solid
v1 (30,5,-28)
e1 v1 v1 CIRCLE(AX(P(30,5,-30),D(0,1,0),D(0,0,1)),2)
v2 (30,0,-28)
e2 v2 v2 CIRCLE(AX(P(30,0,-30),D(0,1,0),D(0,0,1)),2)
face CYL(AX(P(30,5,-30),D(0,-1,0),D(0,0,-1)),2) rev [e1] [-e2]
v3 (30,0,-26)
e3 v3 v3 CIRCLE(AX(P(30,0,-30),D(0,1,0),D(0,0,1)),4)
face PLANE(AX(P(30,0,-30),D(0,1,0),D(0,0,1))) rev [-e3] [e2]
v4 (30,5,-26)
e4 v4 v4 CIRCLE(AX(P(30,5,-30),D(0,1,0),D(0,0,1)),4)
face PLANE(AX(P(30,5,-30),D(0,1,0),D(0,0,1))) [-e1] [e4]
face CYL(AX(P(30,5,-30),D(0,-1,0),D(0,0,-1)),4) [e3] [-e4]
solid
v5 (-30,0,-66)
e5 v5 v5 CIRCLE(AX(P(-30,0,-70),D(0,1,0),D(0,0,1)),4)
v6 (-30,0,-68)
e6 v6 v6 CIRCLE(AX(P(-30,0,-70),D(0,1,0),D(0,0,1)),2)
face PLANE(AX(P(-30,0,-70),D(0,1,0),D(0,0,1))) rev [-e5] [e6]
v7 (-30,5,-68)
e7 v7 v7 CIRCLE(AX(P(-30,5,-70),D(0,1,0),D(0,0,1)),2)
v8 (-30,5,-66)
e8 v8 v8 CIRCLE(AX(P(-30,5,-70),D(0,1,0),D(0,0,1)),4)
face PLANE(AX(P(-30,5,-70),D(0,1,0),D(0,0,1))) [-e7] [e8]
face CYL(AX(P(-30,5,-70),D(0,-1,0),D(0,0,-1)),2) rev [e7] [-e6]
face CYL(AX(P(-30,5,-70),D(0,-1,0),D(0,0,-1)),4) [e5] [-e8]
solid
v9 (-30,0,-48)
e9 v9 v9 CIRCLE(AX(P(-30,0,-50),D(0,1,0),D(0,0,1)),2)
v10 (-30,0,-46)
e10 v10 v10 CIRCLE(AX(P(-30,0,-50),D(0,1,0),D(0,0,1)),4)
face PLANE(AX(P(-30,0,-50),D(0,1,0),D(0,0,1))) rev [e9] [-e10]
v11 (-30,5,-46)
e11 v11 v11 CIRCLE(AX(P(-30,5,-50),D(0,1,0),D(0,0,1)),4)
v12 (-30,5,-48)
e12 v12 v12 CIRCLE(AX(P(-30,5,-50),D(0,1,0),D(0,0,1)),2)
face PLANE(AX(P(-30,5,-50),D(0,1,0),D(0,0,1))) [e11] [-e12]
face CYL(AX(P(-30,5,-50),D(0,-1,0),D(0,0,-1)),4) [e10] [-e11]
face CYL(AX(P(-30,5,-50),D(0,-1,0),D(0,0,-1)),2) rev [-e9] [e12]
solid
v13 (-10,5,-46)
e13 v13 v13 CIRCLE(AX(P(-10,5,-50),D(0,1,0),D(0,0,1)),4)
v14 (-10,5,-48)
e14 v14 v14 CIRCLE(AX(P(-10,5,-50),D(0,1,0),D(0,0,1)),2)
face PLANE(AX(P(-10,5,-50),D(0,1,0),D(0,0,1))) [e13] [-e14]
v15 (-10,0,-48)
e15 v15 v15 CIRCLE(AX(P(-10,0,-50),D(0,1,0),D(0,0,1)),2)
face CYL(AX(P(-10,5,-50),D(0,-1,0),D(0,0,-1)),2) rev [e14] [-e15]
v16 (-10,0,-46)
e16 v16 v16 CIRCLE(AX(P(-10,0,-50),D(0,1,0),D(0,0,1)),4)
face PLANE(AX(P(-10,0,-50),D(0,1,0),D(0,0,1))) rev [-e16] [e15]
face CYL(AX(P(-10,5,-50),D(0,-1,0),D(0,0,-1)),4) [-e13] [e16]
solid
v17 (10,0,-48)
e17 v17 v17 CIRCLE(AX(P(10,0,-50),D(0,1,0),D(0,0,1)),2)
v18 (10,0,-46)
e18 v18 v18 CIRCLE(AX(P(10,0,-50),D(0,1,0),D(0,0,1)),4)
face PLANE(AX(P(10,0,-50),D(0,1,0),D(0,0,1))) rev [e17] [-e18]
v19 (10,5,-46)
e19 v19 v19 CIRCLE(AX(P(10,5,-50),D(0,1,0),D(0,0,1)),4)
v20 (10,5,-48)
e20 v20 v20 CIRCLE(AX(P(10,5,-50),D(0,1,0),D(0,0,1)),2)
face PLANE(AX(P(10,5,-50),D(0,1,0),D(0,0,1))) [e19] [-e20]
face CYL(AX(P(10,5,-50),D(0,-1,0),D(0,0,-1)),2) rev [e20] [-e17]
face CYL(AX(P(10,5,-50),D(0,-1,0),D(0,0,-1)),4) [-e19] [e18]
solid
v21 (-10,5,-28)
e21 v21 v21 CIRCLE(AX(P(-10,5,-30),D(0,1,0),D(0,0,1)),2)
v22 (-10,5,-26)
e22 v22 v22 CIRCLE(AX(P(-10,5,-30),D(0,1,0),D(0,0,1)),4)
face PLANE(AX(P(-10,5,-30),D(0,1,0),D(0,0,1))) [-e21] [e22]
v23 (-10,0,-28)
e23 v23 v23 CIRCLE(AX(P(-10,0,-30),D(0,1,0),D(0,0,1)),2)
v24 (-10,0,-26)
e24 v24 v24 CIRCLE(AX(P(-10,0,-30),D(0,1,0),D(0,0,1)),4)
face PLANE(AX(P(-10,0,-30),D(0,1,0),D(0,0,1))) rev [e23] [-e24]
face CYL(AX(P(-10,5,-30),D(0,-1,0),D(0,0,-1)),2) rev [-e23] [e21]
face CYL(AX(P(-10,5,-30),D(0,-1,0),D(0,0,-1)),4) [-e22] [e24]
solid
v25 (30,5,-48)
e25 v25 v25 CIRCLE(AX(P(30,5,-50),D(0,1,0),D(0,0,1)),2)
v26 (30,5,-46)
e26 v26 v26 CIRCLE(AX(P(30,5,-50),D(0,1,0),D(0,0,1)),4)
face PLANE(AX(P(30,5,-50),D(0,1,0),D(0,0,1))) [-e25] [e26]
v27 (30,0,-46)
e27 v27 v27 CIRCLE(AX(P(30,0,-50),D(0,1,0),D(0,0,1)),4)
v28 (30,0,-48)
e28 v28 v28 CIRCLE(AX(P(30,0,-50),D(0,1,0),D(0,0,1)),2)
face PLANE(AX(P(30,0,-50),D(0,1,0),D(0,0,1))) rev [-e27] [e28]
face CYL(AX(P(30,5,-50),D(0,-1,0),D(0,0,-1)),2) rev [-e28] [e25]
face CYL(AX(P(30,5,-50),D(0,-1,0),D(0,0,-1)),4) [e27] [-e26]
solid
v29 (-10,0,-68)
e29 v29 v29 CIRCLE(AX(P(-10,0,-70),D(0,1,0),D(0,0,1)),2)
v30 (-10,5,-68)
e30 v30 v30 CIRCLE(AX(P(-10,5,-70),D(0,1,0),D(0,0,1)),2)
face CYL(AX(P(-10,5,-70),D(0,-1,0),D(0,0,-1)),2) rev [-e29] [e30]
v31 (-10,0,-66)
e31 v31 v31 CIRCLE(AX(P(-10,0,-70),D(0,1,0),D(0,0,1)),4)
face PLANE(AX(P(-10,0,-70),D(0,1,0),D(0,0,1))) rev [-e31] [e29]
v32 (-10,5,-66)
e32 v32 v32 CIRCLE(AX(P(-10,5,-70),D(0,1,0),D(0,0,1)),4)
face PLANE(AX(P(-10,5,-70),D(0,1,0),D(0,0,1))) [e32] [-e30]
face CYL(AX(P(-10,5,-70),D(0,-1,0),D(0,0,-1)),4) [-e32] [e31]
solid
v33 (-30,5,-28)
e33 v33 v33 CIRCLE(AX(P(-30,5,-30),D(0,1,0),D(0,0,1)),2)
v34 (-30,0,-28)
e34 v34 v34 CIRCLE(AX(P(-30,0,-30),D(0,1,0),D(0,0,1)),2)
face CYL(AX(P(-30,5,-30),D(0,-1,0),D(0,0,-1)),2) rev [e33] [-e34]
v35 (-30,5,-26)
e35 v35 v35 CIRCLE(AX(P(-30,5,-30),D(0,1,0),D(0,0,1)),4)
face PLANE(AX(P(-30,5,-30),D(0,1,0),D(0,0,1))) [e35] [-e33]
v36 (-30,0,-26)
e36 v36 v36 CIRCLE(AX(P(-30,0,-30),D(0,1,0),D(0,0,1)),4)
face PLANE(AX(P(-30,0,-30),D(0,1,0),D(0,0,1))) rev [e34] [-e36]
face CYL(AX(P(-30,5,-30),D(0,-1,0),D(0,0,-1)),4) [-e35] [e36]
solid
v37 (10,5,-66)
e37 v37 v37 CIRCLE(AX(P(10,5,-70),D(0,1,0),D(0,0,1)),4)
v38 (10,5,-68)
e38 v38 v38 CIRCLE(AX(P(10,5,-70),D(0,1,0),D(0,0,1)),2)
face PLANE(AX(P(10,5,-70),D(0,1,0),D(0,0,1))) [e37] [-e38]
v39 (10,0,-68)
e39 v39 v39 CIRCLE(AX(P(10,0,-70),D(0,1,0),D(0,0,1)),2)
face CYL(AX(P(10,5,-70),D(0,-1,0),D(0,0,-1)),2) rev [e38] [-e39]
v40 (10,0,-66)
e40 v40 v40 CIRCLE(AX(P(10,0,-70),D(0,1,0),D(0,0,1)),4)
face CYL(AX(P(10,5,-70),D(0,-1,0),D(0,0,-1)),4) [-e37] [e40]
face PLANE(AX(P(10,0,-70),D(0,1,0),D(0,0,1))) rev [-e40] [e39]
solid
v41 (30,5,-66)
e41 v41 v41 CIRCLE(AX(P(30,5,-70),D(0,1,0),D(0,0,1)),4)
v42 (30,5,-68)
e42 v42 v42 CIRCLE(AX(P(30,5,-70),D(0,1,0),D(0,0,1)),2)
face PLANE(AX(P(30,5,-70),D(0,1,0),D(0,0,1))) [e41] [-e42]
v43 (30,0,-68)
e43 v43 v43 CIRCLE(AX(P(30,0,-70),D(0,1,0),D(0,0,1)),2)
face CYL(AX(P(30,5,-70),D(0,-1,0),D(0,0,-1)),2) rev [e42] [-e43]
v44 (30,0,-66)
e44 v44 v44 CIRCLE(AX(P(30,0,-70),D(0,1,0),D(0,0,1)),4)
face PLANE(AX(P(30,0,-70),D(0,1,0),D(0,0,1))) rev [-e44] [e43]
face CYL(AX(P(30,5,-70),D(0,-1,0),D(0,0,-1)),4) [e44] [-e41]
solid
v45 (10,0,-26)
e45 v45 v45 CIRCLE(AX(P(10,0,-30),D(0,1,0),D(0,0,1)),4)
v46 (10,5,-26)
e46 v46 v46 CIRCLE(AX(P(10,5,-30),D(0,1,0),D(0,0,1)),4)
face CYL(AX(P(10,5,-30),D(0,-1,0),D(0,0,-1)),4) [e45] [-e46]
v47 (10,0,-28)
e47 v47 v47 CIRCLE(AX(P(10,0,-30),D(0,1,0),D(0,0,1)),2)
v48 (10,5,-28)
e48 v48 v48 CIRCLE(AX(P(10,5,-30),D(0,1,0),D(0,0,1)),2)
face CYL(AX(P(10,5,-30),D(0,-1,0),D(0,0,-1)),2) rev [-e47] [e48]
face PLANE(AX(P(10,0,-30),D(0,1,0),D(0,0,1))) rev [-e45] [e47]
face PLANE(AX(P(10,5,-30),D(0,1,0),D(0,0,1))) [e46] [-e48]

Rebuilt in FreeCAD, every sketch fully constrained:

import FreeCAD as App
import Part
import Sketcher

V = App.Vector

doc = App.newDocument("Part")
params = doc.addObject("Spreadsheet::Sheet", "Params")
for row, (alias, value) in enumerate([
    ("sketch1_diameter", "8 mm"),
    ("sketch1_diameter2", "4 mm"),
    ("pad1_length", "5 mm"),
    ("sketch2_diameter", "8 mm"),
    ("sketch2_diameter2", "4 mm"),
    ("pad2_length", "5 mm"),
    ("sketch3_diameter", "8 mm"),
    ("sketch3_diameter2", "4 mm"),
    ("pad3_length", "5 mm"),
    ("sketch4_diameter", "8 mm"),
    ("sketch4_diameter2", "4 mm"),
    ("pad4_length", "5 mm"),
    ("sketch5_diameter", "8 mm"),
    ("sketch5_diameter2", "4 mm"),
    ("pad5_length", "5 mm"),
    ("sketch6_diameter", "8 mm"),
    ("sketch6_diameter2", "4 mm"),
    ("pad6_length", "5 mm"),
    ("sketch7_diameter", "8 mm"),
    ("sketch7_diameter2", "4 mm"),
    ("pad7_length", "5 mm"),
    ("sketch8_diameter", "8 mm"),
    ("sketch8_diameter2", "4 mm"),
    ("pad8_length", "5 mm"),
    ("sketch9_diameter", "8 mm"),
    ("sketch9_diameter2", "4 mm"),
    ("pad9_length", "5 mm"),
    ("sketch10_diameter", "8 mm"),
    ("sketch10_diameter2", "4 mm"),
    ("pad10_length", "5 mm"),
    ("sketch11_diameter", "8 mm"),
    ("sketch11_diameter2", "4 mm"),
    ("pad11_length", "5 mm"),
    ("sketch12_diameter", "8 mm"),
    ("sketch12_diameter2", "4 mm"),
    ("pad12_length", "5 mm"),
], start=1):
    params.set(f"A{row}", alias)
    params.set(f"B{row}", "=" + value)
    params.setAlias(f"B{row}", alias)

body = doc.addObject("PartDesign::Body", "Body")

sketch1 = body.newObject("Sketcher::SketchObject", "Sketch")
sketch1.AttachmentSupport = (doc.getObject("XZ_Plane"), [""])
sketch1.MapMode = "FlatFace"
sketch1.addGeometry([
    Part.Circle(V(-30, -30, 0), V(0, 0, 1), 4),
    Part.Circle(V(-30, -30, 0), V(0, 0, 1), 2),
], False)
sketch1.addConstraint([
    Sketcher.Constraint("Coincident", 1, 3, 0, 3),
    Sketcher.Constraint("Diameter", 0, 8.0),
    Sketcher.Constraint("Diameter", 1, 4.0),
    Sketcher.Constraint("DistanceX", 0, 3, -1, 1, 30.0),
    Sketcher.Constraint("DistanceY", 0, 3, -1, 1, 30.0),
])
sketch1.setExpression("Constraints[1]", "Params.sketch1_diameter")
sketch1.setExpression("Constraints[2]", "Params.sketch1_diameter2")
pad1 = body.newObject("PartDesign::Pad", "Pad")
pad1.Profile = sketch1
pad1.setExpression("Length", "Params.pad1_length")
pad1.Reversed = True
body2 = doc.addObject("PartDesign::Body", "Body001")

sketch2 = body2.newObject("Sketcher::SketchObject", "Sketch001")
sketch2.AttachmentSupport = (doc.getObject("XZ_Plane001"), [""])
sketch2.MapMode = "FlatFace"
sketch2.addGeometry([
    Part.Circle(V(-10, -30, 0), V(0, 0, 1), 4),
    Part.Circle(V(-10, -30, 0), V(0, 0, 1), 2),
], False)
sketch2.addConstraint([
    Sketcher.Constraint("Coincident", 1, 3, 0, 3),
    Sketcher.Constraint("Diameter", 0, 8.0),
    Sketcher.Constraint("Diameter", 1, 4.0),
    Sketcher.Constraint("DistanceX", 0, 3, -1, 1, 10.0),
    Sketcher.Constraint("DistanceY", 0, 3, -1, 1, 30.0),
])
sketch2.setExpression("Constraints[1]", "Params.sketch2_diameter")
sketch2.setExpression("Constraints[2]", "Params.sketch2_diameter2")
pad2 = body2.newObject("PartDesign::Pad", "Pad001")
pad2.Profile = sketch2
pad2.setExpression("Length", "Params.pad2_length")
pad2.Reversed = True
body3 = doc.addObject("PartDesign::Body", "Body002")

sketch3 = body3.newObject("Sketcher::SketchObject", "Sketch002")
sketch3.AttachmentSupport = (doc.getObject("XZ_Plane002"), [""])
sketch3.MapMode = "FlatFace"
sketch3.addGeometry([
    Part.Circle(V(10, -30, 0), V(0, 0, 1), 4),
    Part.Circle(V(10, -30, 0), V(0, 0, 1), 2),
], False)
sketch3.addConstraint([
    Sketcher.Constraint("Coincident", 1, 3, 0, 3),
    Sketcher.Constraint("Diameter", 0, 8.0),
    Sketcher.Constraint("Diameter", 1, 4.0),
    Sketcher.Constraint("DistanceX", -1, 1, 0, 3, 10.0),
    Sketcher.Constraint("DistanceY", 0, 3, -1, 1, 30.0),
])
sketch3.setExpression("Constraints[1]", "Params.sketch3_diameter")
sketch3.setExpression("Constraints[2]", "Params.sketch3_diameter2")
pad3 = body3.newObject("PartDesign::Pad", "Pad002")
pad3.Profile = sketch3
pad3.setExpression("Length", "Params.pad3_length")
pad3.Reversed = True
body4 = doc.addObject("PartDesign::Body", "Body003")

sketch4 = body4.newObject("Sketcher::SketchObject", "Sketch003")
sketch4.AttachmentSupport = (doc.getObject("XZ_Plane003"), [""])
sketch4.MapMode = "FlatFace"
sketch4.addGeometry([
    Part.Circle(V(30, -30, 0), V(0, 0, 1), 4),
    Part.Circle(V(30, -30, 0), V(0, 0, 1), 2),
], False)
sketch4.addConstraint([
    Sketcher.Constraint("Coincident", 1, 3, 0, 3),
    Sketcher.Constraint("Diameter", 0, 8.0),
    Sketcher.Constraint("Diameter", 1, 4.0),
    Sketcher.Constraint("DistanceX", -1, 1, 0, 3, 30.0),
    Sketcher.Constraint("DistanceY", 0, 3, -1, 1, 30.0),
])
sketch4.setExpression("Constraints[1]", "Params.sketch4_diameter")
sketch4.setExpression("Constraints[2]", "Params.sketch4_diameter2")
pad4 = body4.newObject("PartDesign::Pad", "Pad003")
pad4.Profile = sketch4
pad4.setExpression("Length", "Params.pad4_length")
pad4.Reversed = True
body5 = doc.addObject("PartDesign::Body", "Body004")

sketch5 = body5.newObject("Sketcher::SketchObject", "Sketch004")
sketch5.AttachmentSupport = (doc.getObject("XZ_Plane004"), [""])
sketch5.MapMode = "FlatFace"
sketch5.addGeometry([
    Part.Circle(V(-10, -50, 0), V(0, 0, 1), 4),
    Part.Circle(V(-10, -50, 0), V(0, 0, 1), 2),
], False)
sketch5.addConstraint([
    Sketcher.Constraint("Coincident", 1, 3, 0, 3),
    Sketcher.Constraint("Diameter", 0, 8.0),
    Sketcher.Constraint("Diameter", 1, 4.0),
    Sketcher.Constraint("DistanceX", 0, 3, -1, 1, 10.0),
    Sketcher.Constraint("DistanceY", 0, 3, -1, 1, 50.0),
])
sketch5.setExpression("Constraints[1]", "Params.sketch5_diameter")
sketch5.setExpression("Constraints[2]", "Params.sketch5_diameter2")
pad5 = body5.newObject("PartDesign::Pad", "Pad004")
pad5.Profile = sketch5
pad5.setExpression("Length", "Params.pad5_length")
pad5.Reversed = True
body6 = doc.addObject("PartDesign::Body", "Body005")

sketch6 = body6.newObject("Sketcher::SketchObject", "Sketch005")
sketch6.AttachmentSupport = (doc.getObject("XZ_Plane005"), [""])
sketch6.MapMode = "FlatFace"
sketch6.addGeometry([
    Part.Circle(V(10, -50, 0), V(0, 0, 1), 4),
    Part.Circle(V(10, -50, 0), V(0, 0, 1), 2),
], False)
sketch6.addConstraint([
    Sketcher.Constraint("Coincident", 1, 3, 0, 3),
    Sketcher.Constraint("Diameter", 0, 8.0),
    Sketcher.Constraint("Diameter", 1, 4.0),
    Sketcher.Constraint("DistanceX", -1, 1, 0, 3, 10.0),
    Sketcher.Constraint("DistanceY", 0, 3, -1, 1, 50.0),
])
sketch6.setExpression("Constraints[1]", "Params.sketch6_diameter")
sketch6.setExpression("Constraints[2]", "Params.sketch6_diameter2")
pad6 = body6.newObject("PartDesign::Pad", "Pad005")
pad6.Profile = sketch6
pad6.setExpression("Length", "Params.pad6_length")
pad6.Reversed = True
body7 = doc.addObject("PartDesign::Body", "Body006")

sketch7 = body7.newObject("Sketcher::SketchObject", "Sketch006")
sketch7.AttachmentSupport = (doc.getObject("XZ_Plane006"), [""])
sketch7.MapMode = "FlatFace"
sketch7.addGeometry([
    Part.Circle(V(30, -50, 0), V(0, 0, 1), 4),
    Part.Circle(V(30, -50, 0), V(0, 0, 1), 2),
], False)
sketch7.addConstraint([
    Sketcher.Constraint("Coincident", 1, 3, 0, 3),
    Sketcher.Constraint("Diameter", 0, 8.0),
    Sketcher.Constraint("Diameter", 1, 4.0),
    Sketcher.Constraint("DistanceX", -1, 1, 0, 3, 30.0),
    Sketcher.Constraint("DistanceY", 0, 3, -1, 1, 50.0),
])
sketch7.setExpression("Constraints[1]", "Params.sketch7_diameter")
sketch7.setExpression("Constraints[2]", "Params.sketch7_diameter2")
pad7 = body7.newObject("PartDesign::Pad", "Pad006")
pad7.Profile = sketch7
pad7.setExpression("Length", "Params.pad7_length")
pad7.Reversed = True
body8 = doc.addObject("PartDesign::Body", "Body007")

sketch8 = body8.newObject("Sketcher::SketchObject", "Sketch007")
sketch8.AttachmentSupport = (doc.getObject("XZ_Plane007"), [""])
sketch8.MapMode = "FlatFace"
sketch8.addGeometry([
    Part.Circle(V(-10, -70, 0), V(0, 0, 1), 4),
    Part.Circle(V(-10, -70, 0), V(0, 0, 1), 2),
], False)
sketch8.addConstraint([
    Sketcher.Constraint("Coincident", 1, 3, 0, 3),
    Sketcher.Constraint("Diameter", 0, 8.0),
    Sketcher.Constraint("Diameter", 1, 4.0),
    Sketcher.Constraint("DistanceX", 0, 3, -1, 1, 10.0),
    Sketcher.Constraint("DistanceY", 0, 3, -1, 1, 70.0),
])
sketch8.setExpression("Constraints[1]", "Params.sketch8_diameter")
sketch8.setExpression("Constraints[2]", "Params.sketch8_diameter2")
pad8 = body8.newObject("PartDesign::Pad", "Pad007")
pad8.Profile = sketch8
pad8.setExpression("Length", "Params.pad8_length")
pad8.Reversed = True
body9 = doc.addObject("PartDesign::Body", "Body008")

sketch9 = body9.newObject("Sketcher::SketchObject", "Sketch008")
sketch9.AttachmentSupport = (doc.getObject("XZ_Plane008"), [""])
sketch9.MapMode = "FlatFace"
sketch9.addGeometry([
    Part.Circle(V(10, -70, 0), V(0, 0, 1), 4),
    Part.Circle(V(10, -70, 0), V(0, 0, 1), 2),
], False)
sketch9.addConstraint([
    Sketcher.Constraint("Coincident", 1, 3, 0, 3),
    Sketcher.Constraint("Diameter", 0, 8.0),
    Sketcher.Constraint("Diameter", 1, 4.0),
    Sketcher.Constraint("DistanceX", -1, 1, 0, 3, 10.0),
    Sketcher.Constraint("DistanceY", 0, 3, -1, 1, 70.0),
])
sketch9.setExpression("Constraints[1]", "Params.sketch9_diameter")
sketch9.setExpression("Constraints[2]", "Params.sketch9_diameter2")
pad9 = body9.newObject("PartDesign::Pad", "Pad008")
pad9.Profile = sketch9
pad9.setExpression("Length", "Params.pad9_length")
pad9.Reversed = True
body10 = doc.addObject("PartDesign::Body", "Body009")

sketch10 = body10.newObject("Sketcher::SketchObject", "Sketch009")
sketch10.AttachmentSupport = (doc.getObject("XZ_Plane009"), [""])
sketch10.MapMode = "FlatFace"
sketch10.addGeometry([
    Part.Circle(V(30, -70, 0), V(0, 0, 1), 4),
    Part.Circle(V(30, -70, 0), V(0, 0, 1), 2),
], False)
sketch10.addConstraint([
    Sketcher.Constraint("Coincident", 1, 3, 0, 3),
    Sketcher.Constraint("Diameter", 0, 8.0),
    Sketcher.Constraint("Diameter", 1, 4.0),
    Sketcher.Constraint("DistanceX", -1, 1, 0, 3, 30.0),
    Sketcher.Constraint("DistanceY", 0, 3, -1, 1, 70.0),
])
sketch10.setExpression("Constraints[1]", "Params.sketch10_diameter")
sketch10.setExpression("Constraints[2]", "Params.sketch10_diameter2")
pad10 = body10.newObject("PartDesign::Pad", "Pad009")
pad10.Profile = sketch10
pad10.setExpression("Length", "Params.pad10_length")
pad10.Reversed = True
body11 = doc.addObject("PartDesign::Body", "Body010")

sketch11 = body11.newObject("Sketcher::SketchObject", "Sketch010")
sketch11.AttachmentSupport = (doc.getObject("XZ_Plane010"), [""])
sketch11.MapMode = "FlatFace"
sketch11.addGeometry([
    Part.Circle(V(-30, -50, 0), V(0, 0, 1), 4),
    Part.Circle(V(-30, -50, 0), V(0, 0, 1), 2),
], False)
sketch11.addConstraint([
    Sketcher.Constraint("Coincident", 1, 3, 0, 3),
    Sketcher.Constraint("Diameter", 0, 8.0),
    Sketcher.Constraint("Diameter", 1, 4.0),
    Sketcher.Constraint("DistanceX", 0, 3, -1, 1, 30.0),
    Sketcher.Constraint("DistanceY", 0, 3, -1, 1, 50.0),
])
sketch11.setExpression("Constraints[1]", "Params.sketch11_diameter")
sketch11.setExpression("Constraints[2]", "Params.sketch11_diameter2")
pad11 = body11.newObject("PartDesign::Pad", "Pad010")
pad11.Profile = sketch11
pad11.setExpression("Length", "Params.pad11_length")
pad11.Reversed = True
body12 = doc.addObject("PartDesign::Body", "Body011")

sketch12 = body12.newObject("Sketcher::SketchObject", "Sketch011")
sketch12.AttachmentSupport = (doc.getObject("XZ_Plane011"), [""])
sketch12.MapMode = "FlatFace"
sketch12.addGeometry([
    Part.Circle(V(-30, -70, 0), V(0, 0, 1), 4),
    Part.Circle(V(-30, -70, 0), V(0, 0, 1), 2),
], False)
sketch12.addConstraint([
    Sketcher.Constraint("Coincident", 1, 3, 0, 3),
    Sketcher.Constraint("Diameter", 0, 8.0),
    Sketcher.Constraint("Diameter", 1, 4.0),
    Sketcher.Constraint("DistanceX", 0, 3, -1, 1, 30.0),
    Sketcher.Constraint("DistanceY", 0, 3, -1, 1, 70.0),
])
sketch12.setExpression("Constraints[1]", "Params.sketch12_diameter")
sketch12.setExpression("Constraints[2]", "Params.sketch12_diameter2")
pad12 = body12.newObject("PartDesign::Pad", "Pad011")
pad12.Profile = sketch12
pad12.setExpression("Length", "Params.pad12_length")
pad12.Reversed = True

doc.recompute()
